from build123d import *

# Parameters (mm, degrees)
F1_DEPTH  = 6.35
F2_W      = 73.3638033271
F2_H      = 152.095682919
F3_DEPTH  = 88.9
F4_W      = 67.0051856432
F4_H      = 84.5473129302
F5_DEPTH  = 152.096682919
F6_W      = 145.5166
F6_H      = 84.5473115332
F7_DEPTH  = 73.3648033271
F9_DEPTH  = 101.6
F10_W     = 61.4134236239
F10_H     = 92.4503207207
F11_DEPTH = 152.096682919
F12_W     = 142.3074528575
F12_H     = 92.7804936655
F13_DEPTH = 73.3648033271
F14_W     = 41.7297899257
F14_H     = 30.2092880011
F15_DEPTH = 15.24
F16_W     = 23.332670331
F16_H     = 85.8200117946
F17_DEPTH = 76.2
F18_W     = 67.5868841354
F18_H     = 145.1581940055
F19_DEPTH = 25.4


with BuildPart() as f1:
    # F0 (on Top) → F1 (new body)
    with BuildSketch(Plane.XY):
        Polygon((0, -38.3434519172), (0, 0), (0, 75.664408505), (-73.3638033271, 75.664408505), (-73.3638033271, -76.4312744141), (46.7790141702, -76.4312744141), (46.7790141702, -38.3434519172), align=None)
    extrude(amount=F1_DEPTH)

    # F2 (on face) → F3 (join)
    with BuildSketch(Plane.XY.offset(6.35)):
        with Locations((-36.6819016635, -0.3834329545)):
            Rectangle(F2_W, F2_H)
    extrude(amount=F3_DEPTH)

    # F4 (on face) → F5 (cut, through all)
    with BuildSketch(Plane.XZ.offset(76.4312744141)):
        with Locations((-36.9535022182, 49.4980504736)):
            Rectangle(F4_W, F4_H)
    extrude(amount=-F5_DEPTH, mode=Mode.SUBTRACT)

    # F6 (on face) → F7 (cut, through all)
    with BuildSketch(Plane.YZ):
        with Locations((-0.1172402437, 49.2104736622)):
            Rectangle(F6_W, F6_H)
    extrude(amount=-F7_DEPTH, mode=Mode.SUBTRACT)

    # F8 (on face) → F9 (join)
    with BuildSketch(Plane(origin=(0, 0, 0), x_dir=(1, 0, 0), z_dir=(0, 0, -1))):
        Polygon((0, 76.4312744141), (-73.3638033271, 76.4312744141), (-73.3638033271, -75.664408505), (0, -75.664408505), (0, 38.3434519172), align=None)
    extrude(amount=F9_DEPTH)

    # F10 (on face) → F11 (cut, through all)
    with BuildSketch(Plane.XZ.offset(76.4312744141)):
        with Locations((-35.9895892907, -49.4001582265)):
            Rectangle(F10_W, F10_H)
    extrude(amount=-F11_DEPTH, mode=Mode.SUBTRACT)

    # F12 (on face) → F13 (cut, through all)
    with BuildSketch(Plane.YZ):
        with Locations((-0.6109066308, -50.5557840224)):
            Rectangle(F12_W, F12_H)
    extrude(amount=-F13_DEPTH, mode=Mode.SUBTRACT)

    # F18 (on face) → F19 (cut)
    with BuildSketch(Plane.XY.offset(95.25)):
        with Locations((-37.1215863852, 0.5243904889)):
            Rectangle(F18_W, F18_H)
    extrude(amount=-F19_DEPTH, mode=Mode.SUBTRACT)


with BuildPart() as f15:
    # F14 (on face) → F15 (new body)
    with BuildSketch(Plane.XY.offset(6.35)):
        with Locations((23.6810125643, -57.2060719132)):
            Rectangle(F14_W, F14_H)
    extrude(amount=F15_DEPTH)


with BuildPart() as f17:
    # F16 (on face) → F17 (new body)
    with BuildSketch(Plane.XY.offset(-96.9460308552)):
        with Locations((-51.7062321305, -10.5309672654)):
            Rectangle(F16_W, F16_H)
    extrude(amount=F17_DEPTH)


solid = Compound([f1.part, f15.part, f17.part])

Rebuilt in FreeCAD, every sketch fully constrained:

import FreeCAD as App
import Part
import Sketcher
Q = App.Units.Quantity

doc = App.newDocument("Part")
params = doc.addObject("Spreadsheet::Sheet", "Params")
for row, (alias, value) in enumerate([
    ("pad1_length", "0.25 in"),
    ("pad2_length", "3.5 in"),
    ("sketch4_width", "5.729 in"),
    ("pad3_length", "4 in"),
    ("pocket5_length", "1 in"),
    ("pad4_length", "0.6 in"),
    ("pad5_length", "3 in"),
], start=1):
    params.set(f"A{row}", alias)
    params.set(f"B{row}", "=" + value)
    params.setAlias(f"B{row}", alias)

body = doc.addObject("PartDesign::Body", "Body")

# Sketch on XY plane
sketch1 = body.newObject("Sketcher::SketchObject", "Sketch")
sketch1.AttachmentSupport = (doc.getObject("XY_Plane"), [""])
sketch1.MapMode = "FlatFace"
sketch1.addGeometry([
    Part.LineSegment(App.Vector(0, -38, 0), App.Vector(0, 76, 0)),  # 0
    Part.LineSegment(App.Vector(0, 76, 0), App.Vector(-73, 76, 0)),  # 1
    Part.LineSegment(App.Vector(-73, 76, 0), App.Vector(-73, -76, 0)),  # 2
    Part.LineSegment(App.Vector(-73, -76, 0), App.Vector(47, -76, 0)),  # 3
    Part.LineSegment(App.Vector(47, -76, 0), App.Vector(47, -38, 0)),  # 4
    Part.LineSegment(App.Vector(47, -38, 0), App.Vector(0, -38, 0)),  # 5
], False)
sketch1.addConstraint([
    Sketcher.Constraint("Coincident", 0, 2, 1, 1),
    Sketcher.Constraint("Coincident", 1, 2, 2, 1),
    Sketcher.Constraint("Coincident", 2, 2, 3, 1),
    Sketcher.Constraint("Coincident", 3, 2, 4, 1),
    Sketcher.Constraint("Coincident", 4, 2, 5, 1),
    Sketcher.Constraint("Coincident", 5, 2, 0, 1),
    Sketcher.Constraint("Vertical", 0),
    Sketcher.Constraint("Horizontal", 1),
    Sketcher.Constraint("Vertical", 2),
    Sketcher.Constraint("Horizontal", 3),
    Sketcher.Constraint("Vertical", 4),
    Sketcher.Constraint("Horizontal", 5),
    Sketcher.Constraint("PointOnObject", 0, 2, -2),
    Sketcher.Constraint("DistanceY", 0, 1, 0, 2, 114.00786),
    Sketcher.Constraint("DistanceX", 1, 2, 1, 1, 73.363803),
    Sketcher.Constraint("DistanceX", 3, 1, 3, 2, 120.142817),
    Sketcher.Constraint("DistanceY", 2, 2, 2, 1, 152.095683),
    Sketcher.Constraint("DistanceY", -1, 1, 0, 2, 75.664409),
])
pad1 = body.newObject("PartDesign::Pad", "Pad")
pad1.Profile = sketch1
pad1.setExpression("Length", "Params.pad1_length")

# Sketch on XY plane
sketch2 = body.newObject("Sketcher::SketchObject", "Sketch001")
sketch2.AttachmentSupport = (doc.getObject("XY_Plane"), [""])
sketch2.MapMode = "FlatFace"
sketch2.AttachmentOffset = App.Placement(App.Vector(0, 0, 0.25 * 25.4), App.Rotation())
sketch2.addGeometry([
    Part.LineSegment(App.Vector(-73, 76, 0), App.Vector(-73, -76, 0)),
    Part.LineSegment(App.Vector(-73, -76, 0), App.Vector(0, -76, 0)),
    Part.LineSegment(App.Vector(0, -76, 0), App.Vector(0, 76, 0)),
    Part.LineSegment(App.Vector(0, 76, 0), App.Vector(-73, 76, 0)),
], False)
sketch2.addConstraint([
    Sketcher.Constraint("Coincident", 0, 2, 1, 1),
    Sketcher.Constraint("Coincident", 1, 2, 2, 1),
    Sketcher.Constraint("Coincident", 2, 2, 3, 1),
    Sketcher.Constraint("Coincident", 3, 2, 0, 1),
    Sketcher.Constraint("Vertical", 0),
    Sketcher.Constraint("Horizontal", 1),
    Sketcher.Constraint("Vertical", 2),
    Sketcher.Constraint("Horizontal", 3),
    Sketcher.Constraint("PointOnObject", 1, 2, -2),
    Sketcher.Constraint("DistanceX", 1, 1, 1, 2, 73.363803),
    Sketcher.Constraint("DistanceY", 0, 2, 0, 1, 152.095683),
    Sketcher.Constraint("DistanceY", -1, 1, 2, 2, 75.664409),
])
pad2 = body.newObject("PartDesign::Pad", "Pad001")
pad2.Profile = sketch2
pad2.setExpression("Length", "Params.pad2_length")

# Sketch on XZ plane
sketch3 = body.newObject("Sketcher::SketchObject", "Sketch002")
sketch3.AttachmentSupport = (doc.getObject("XZ_Plane"), [""])
sketch3.MapMode = "FlatFace"
sketch3.AttachmentOffset = App.Placement(App.Vector(0, 0, 76.431274), App.Rotation())
sketch3.addGeometry([
    Part.LineSegment(App.Vector(-70, 92, 0), App.Vector(-70, 7, 0)),
    Part.LineSegment(App.Vector(-70, 7, 0), App.Vector(-3, 7, 0)),
    Part.LineSegment(App.Vector(-3, 7, 0), App.Vector(-3, 92, 0)),
    Part.LineSegment(App.Vector(-3, 92, 0), App.Vector(-70, 92, 0)),
], False)
sketch3.addConstraint([
    Sketcher.Constraint("Coincident", 0, 2, 1, 1),
    Sketcher.Constraint("Coincident", 1, 2, 2, 1),
    Sketcher.Constraint("Coincident", 2, 2, 3, 1),
    Sketcher.Constraint("Coincident", 3, 2, 0, 1),
    Sketcher.Constraint("Vertical", 0),
    Sketcher.Constraint("Horizontal", 1),
    Sketcher.Constraint("Vertical", 2),
    Sketcher.Constraint("Horizontal", 3),
    Sketcher.Constraint("DistanceX", 1, 1, 1, 2, 67.005186),
    Sketcher.Constraint("DistanceY", 0, 2, 0, 1, 84.547313),
    Sketcher.Constraint("DistanceX", 1, 2, -1, 1, 3.450909),
    Sketcher.Constraint("DistanceY", -1, 1, 0, 2, 7.224394),
])
pocket1 = body.newObject("PartDesign::Pocket", "Pocket")
pocket1.Profile = sketch3
pocket1.Type = "ThroughAll"

# Sketch on YZ plane
sketch4 = body.newObject("Sketcher::SketchObject", "Sketch003")
sketch4.AttachmentSupport = (doc.getObject("YZ_Plane"), [""])
sketch4.MapMode = "FlatFace"
sketch4.addGeometry([
    Part.LineSegment(App.Vector(-73, 91, 0), App.Vector(-73, 7, 0)),
    Part.LineSegment(App.Vector(-73, 7, 0), App.Vector(73, 7, 0)),
    Part.LineSegment(App.Vector(73, 7, 0), App.Vector(73, 91, 0)),
    Part.LineSegment(App.Vector(73, 91, 0), App.Vector(-73, 91, 0)),
], False)
sketch4.addConstraint([
    Sketcher.Constraint("Coincident", 0, 2, 1, 1),
    Sketcher.Constraint("Coincident", 1, 2, 2, 1),
    Sketcher.Constraint("Coincident", 2, 2, 3, 1),
    Sketcher.Constraint("Coincident", 3, 2, 0, 1),
    Sketcher.Constraint("Vertical", 0),
    Sketcher.Constraint("Horizontal", 1),
    Sketcher.Constraint("Vertical", 2),
    Sketcher.Constraint("Horizontal", 3),
    Sketcher.Constraint("DistanceX", 1, 1, 1, 2, Q("5.729 in")),
    Sketcher.Constraint("DistanceY", 0, 2, 0, 1, 84.547312),
    Sketcher.Constraint("DistanceX", 0, 2, -1, 1, 72.87554),
    Sketcher.Constraint("DistanceY", -1, 1, 2, 2, 91.484129),
])
sketch4.setExpression("Constraints[8]", "Params.sketch4_width")
pocket2 = body.newObject("PartDesign::Pocket", "Pocket001")
pocket2.Profile = sketch4
pocket2.Type = "ThroughAll"

# Sketch on XY plane
sketch5 = body.newObject("Sketcher::SketchObject", "Sketch004")
sketch5.AttachmentSupport = (doc.getObject("XY_Plane"), [""])
sketch5.MapMode = "FlatFace"
sketch5.addGeometry([
    Part.LineSegment(App.Vector(0, -76, 0), App.Vector(-73, -76, 0)),
    Part.LineSegment(App.Vector(-73, -76, 0), App.Vector(-73, 76, 0)),
    Part.LineSegment(App.Vector(-73, 76, 0), App.Vector(0, 76, 0)),
    Part.LineSegment(App.Vector(0, 76, 0), App.Vector(0, -76, 0)),
], False)
sketch5.addConstraint([
    Sketcher.Constraint("Coincident", 0, 2, 1, 1),
    Sketcher.Constraint("Coincident", 1, 2, 2, 1),
    Sketcher.Constraint("Coincident", 2, 2, 3, 1),
    Sketcher.Constraint("Coincident", 3, 2, 0, 1),
    Sketcher.Constraint("Horizontal", 0),
    Sketcher.Constraint("Vertical", 1),
    Sketcher.Constraint("Horizontal", 2),
    Sketcher.Constraint("Vertical", 3),
    Sketcher.Constraint("PointOnObject", 2, 2, -2),
    Sketcher.Constraint("DistanceX", 0, 2, 0, 1, 73.363803),
    Sketcher.Constraint("DistanceY", 1, 1, 1, 2, 152.095683),
    Sketcher.Constraint("DistanceY", -1, 1, 1, 2, 75.664409),
])
pad3 = body.newObject("PartDesign::Pad", "Pad002")
pad3.Profile = sketch5
pad3.setExpression("Length", "Params.pad3_length")
pad3.Reversed = True

# Sketch on XZ plane
sketch6 = body.newObject("Sketcher::SketchObject", "Sketch005")
sketch6.AttachmentSupport = (doc.getObject("XZ_Plane"), [""])
sketch6.MapMode = "FlatFace"
sketch6.AttachmentOffset = App.Placement(App.Vector(0, 0, 76.431274), App.Rotation())
sketch6.addGeometry([
    Part.LineSegment(App.Vector(-67, -3, 0), App.Vector(-67, -96, 0)),
    Part.LineSegment(App.Vector(-67, -96, 0), App.Vector(-5, -96, 0)),
    Part.LineSegment(App.Vector(-5, -96, 0), App.Vector(-5, -3, 0)),
    Part.LineSegment(App.Vector(-5, -3, 0), App.Vector(-67, -3, 0)),
], False)
sketch6.addConstraint([
    Sketcher.Constraint("Coincident", 0, 2, 1, 1),
    Sketcher.Constraint("Coincident", 1, 2, 2, 1),
    Sketcher.Constraint("Coincident", 2, 2, 3, 1),
    Sketcher.Constraint("Coincident", 3, 2, 0, 1),
    Sketcher.Constraint("Vertical", 0),
    Sketcher.Constraint("Horizontal", 1),
    Sketcher.Constraint("Vertical", 2),
    Sketcher.Constraint("Horizontal", 3),
    Sketcher.Constraint("DistanceY", 2, 2, -1, 1, Q("0.1249999 in")),
    Sketcher.Constraint("DistanceY", 0, 2, 0, 1, 92.450321),
    Sketcher.Constraint("DistanceX", 0, 2, -1, 1, 66.696301),
    Sketcher.Constraint("DistanceX", 1, 1, 1, 2, 61.413424),
])
pocket3 = body.newObject("PartDesign::Pocket", "Pocket002")
pocket3.Profile = sketch6
pocket3.Type = "ThroughAll"

# Sketch on YZ plane
sketch7 = body.newObject("Sketcher::SketchObject", "Sketch006")
sketch7.AttachmentSupport = (doc.getObject("YZ_Plane"), [""])
sketch7.MapMode = "FlatFace"
sketch7.addGeometry([
    Part.LineSegment(App.Vector(-72, -4, 0), App.Vector(-72, -97, 0)),
    Part.LineSegment(App.Vector(-72, -97, 0), App.Vector(71, -97, 0)),
    Part.LineSegment(App.Vector(71, -97, 0), App.Vector(71, -4, 0)),
    Part.LineSegment(App.Vector(71, -4, 0), App.Vector(-72, -4, 0)),
], False)
sketch7.addConstraint([
    Sketcher.Constraint("Coincident", 0, 2, 1, 1),
    Sketcher.Constraint("Coincident", 1, 2, 2, 1),
    Sketcher.Constraint("Coincident", 2, 2, 3, 1),
    Sketcher.Constraint("Coincident", 3, 2, 0, 1),
    Sketcher.Constraint("Vertical", 0),
    Sketcher.Constraint("Horizontal", 1),
    Sketcher.Constraint("Vertical", 2),
    Sketcher.Constraint("Horizontal", 3),
    Sketcher.Constraint("DistanceX", 1, 1, 1, 2, 142.307453),
    Sketcher.Constraint("DistanceY", 0, 2, 0, 1, 92.780494),
    Sketcher.Constraint("DistanceY", 0, 2, -1, 1, 96.946031),
    Sketcher.Constraint("DistanceX", -1, 1, 1, 2, 70.54282),
])
pocket4 = body.newObject("PartDesign::Pocket", "Pocket003")
pocket4.Profile = sketch7
pocket4.Type = "ThroughAll"

# Sketch on XY plane
sketch8 = body.newObject("Sketcher::SketchObject", "Sketch007")
sketch8.AttachmentSupport = (doc.getObject("XY_Plane"), [""])
sketch8.MapMode = "FlatFace"
sketch8.AttachmentOffset = App.Placement(App.Vector(0, 0, 3.75 * 25.4), App.Rotation())
sketch8.addGeometry([
    Part.LineSegment(App.Vector(-71, 73, 0), App.Vector(-71, -72, 0)),
    Part.LineSegment(App.Vector(-71, -72, 0), App.Vector(-3, -72, 0)),
    Part.LineSegment(App.Vector(-3, -72, 0), App.Vector(-3, 73, 0)),
    Part.LineSegment(App.Vector(-3, 73, 0), App.Vector(-71, 73, 0)),
], False)
sketch8.addConstraint([
    Sketcher.Constraint("Coincident", 0, 2, 1, 1),
    Sketcher.Constraint("Coincident", 1, 2, 2, 1),
    Sketcher.Constraint("Coincident", 2, 2, 3, 1),
    Sketcher.Constraint("Coincident", 3, 2, 0, 1),
    Sketcher.Constraint("Vertical", 0),
    Sketcher.Constraint("Horizontal", 1),
    Sketcher.Constraint("Vertical", 2),
    Sketcher.Constraint("Horizontal", 3),
    Sketcher.Constraint("DistanceX", 1, 1, 1, 2, 67.586884),
    Sketcher.Constraint("DistanceY", 0, 2, 0, 1, 145.158194),
    Sketcher.Constraint("DistanceX", 0, 2, -1, 1, 70.915028),
    Sketcher.Constraint("DistanceY", 0, 2, -1, 1, 72.054707),
])
pocket5 = body.newObject("PartDesign::Pocket", "Pocket004")
pocket5.Profile = sketch8
pocket5.setExpression("Length", "Params.pocket5_length")
body2 = doc.addObject("PartDesign::Body", "Body001")

# Sketch on XY plane
sketch9 = body2.newObject("Sketcher::SketchObject", "Sketch008")
sketch9.AttachmentSupport = (doc.getObject("XY_Plane001"), [""])
sketch9.MapMode = "FlatFace"
sketch9.AttachmentOffset = App.Placement(App.Vector(0, 0, 0.25 * 25.4), App.Rotation())
sketch9.addGeometry([
    Part.LineSegment(App.Vector(3, -42, 0), App.Vector(3, -72, 0)),
    Part.LineSegment(App.Vector(3, -72, 0), App.Vector(45, -72, 0)),
    Part.LineSegment(App.Vector(45, -72, 0), App.Vector(45, -42, 0)),
    Part.LineSegment(App.Vector(45, -42, 0), App.Vector(3, -42, 0)),
], False)
sketch9.addConstraint([
    Sketcher.Constraint("Coincident", 0, 2, 1, 1),
    Sketcher.Constraint("Coincident", 1, 2, 2, 1),
    Sketcher.Constraint("Coincident", 2, 2, 3, 1),
    Sketcher.Constraint("Coincident", 3, 2, 0, 1),
    Sketcher.Constraint("Vertical", 0),
    Sketcher.Constraint("Horizontal", 1),
    Sketcher.Constraint("Vertical", 2),
    Sketcher.Constraint("Horizontal", 3),
    Sketcher.Constraint("DistanceX", 1, 1, 1, 2, 41.72979),
    Sketcher.Constraint("DistanceY", 0, 2, 0, 1, 30.209288),
    Sketcher.Constraint("DistanceX", -1, 1, 0, 2, 2.816118),
    Sketcher.Constraint("DistanceY", 0, 2, -1, 1, 72.310716),
])
pad4 = body2.newObject("PartDesign::Pad", "Pad003")
pad4.Profile = sketch9
pad4.setExpression("Length", "Params.pad4_length")
body3 = doc.addObject("PartDesign::Body", "Body002")

# Sketch on XY plane
sketch10 = body3.newObject("Sketcher::SketchObject", "Sketch009")
sketch10.AttachmentSupport = (doc.getObject("XY_Plane002"), [""])
sketch10.MapMode = "FlatFace"
sketch10.AttachmentOffset = App.Placement(App.Vector(0, 0, -96.946031), App.Rotation())
sketch10.addGeometry([
    Part.LineSegment(App.Vector(-63, 32, 0), App.Vector(-63, -53, 0)),
    Part.LineSegment(App.Vector(-63, -53, 0), App.Vector(-40, -53, 0)),
    Part.LineSegment(App.Vector(-40, -53, 0), App.Vector(-40, 32, 0)),
    Part.LineSegment(App.Vector(-40, 32, 0), App.Vector(-63, 32, 0)),
], False)
sketch10.addConstraint([
    Sketcher.Constraint("Coincident", 0, 2, 1, 1),
    Sketcher.Constraint("Coincident", 1, 2, 2, 1),
    Sketcher.Constraint("Coincident", 2, 2, 3, 1),
    Sketcher.Constraint("Coincident", 3, 2, 0, 1),
    Sketcher.Constraint("Vertical", 0),
    Sketcher.Constraint("Horizontal", 1),
    Sketcher.Constraint("Vertical", 2),
    Sketcher.Constraint("Horizontal", 3),
    Sketcher.Constraint("DistanceX", 1, 1, 1, 2, 23.33267),
    Sketcher.Constraint("DistanceY", 0, 2, 0, 1, 85.820012),
    Sketcher.Constraint("DistanceY", -1, 1, 2, 2, 32.379039),
    Sketcher.Constraint("DistanceX", 0, 2, -1, 1, 63.372567),
])
pad5 = body3.newObject("PartDesign::Pad", "Pad004")
pad5.Profile = sketch10
pad5.setExpression("Length", "Params.pad5_length")

doc.recompute()
